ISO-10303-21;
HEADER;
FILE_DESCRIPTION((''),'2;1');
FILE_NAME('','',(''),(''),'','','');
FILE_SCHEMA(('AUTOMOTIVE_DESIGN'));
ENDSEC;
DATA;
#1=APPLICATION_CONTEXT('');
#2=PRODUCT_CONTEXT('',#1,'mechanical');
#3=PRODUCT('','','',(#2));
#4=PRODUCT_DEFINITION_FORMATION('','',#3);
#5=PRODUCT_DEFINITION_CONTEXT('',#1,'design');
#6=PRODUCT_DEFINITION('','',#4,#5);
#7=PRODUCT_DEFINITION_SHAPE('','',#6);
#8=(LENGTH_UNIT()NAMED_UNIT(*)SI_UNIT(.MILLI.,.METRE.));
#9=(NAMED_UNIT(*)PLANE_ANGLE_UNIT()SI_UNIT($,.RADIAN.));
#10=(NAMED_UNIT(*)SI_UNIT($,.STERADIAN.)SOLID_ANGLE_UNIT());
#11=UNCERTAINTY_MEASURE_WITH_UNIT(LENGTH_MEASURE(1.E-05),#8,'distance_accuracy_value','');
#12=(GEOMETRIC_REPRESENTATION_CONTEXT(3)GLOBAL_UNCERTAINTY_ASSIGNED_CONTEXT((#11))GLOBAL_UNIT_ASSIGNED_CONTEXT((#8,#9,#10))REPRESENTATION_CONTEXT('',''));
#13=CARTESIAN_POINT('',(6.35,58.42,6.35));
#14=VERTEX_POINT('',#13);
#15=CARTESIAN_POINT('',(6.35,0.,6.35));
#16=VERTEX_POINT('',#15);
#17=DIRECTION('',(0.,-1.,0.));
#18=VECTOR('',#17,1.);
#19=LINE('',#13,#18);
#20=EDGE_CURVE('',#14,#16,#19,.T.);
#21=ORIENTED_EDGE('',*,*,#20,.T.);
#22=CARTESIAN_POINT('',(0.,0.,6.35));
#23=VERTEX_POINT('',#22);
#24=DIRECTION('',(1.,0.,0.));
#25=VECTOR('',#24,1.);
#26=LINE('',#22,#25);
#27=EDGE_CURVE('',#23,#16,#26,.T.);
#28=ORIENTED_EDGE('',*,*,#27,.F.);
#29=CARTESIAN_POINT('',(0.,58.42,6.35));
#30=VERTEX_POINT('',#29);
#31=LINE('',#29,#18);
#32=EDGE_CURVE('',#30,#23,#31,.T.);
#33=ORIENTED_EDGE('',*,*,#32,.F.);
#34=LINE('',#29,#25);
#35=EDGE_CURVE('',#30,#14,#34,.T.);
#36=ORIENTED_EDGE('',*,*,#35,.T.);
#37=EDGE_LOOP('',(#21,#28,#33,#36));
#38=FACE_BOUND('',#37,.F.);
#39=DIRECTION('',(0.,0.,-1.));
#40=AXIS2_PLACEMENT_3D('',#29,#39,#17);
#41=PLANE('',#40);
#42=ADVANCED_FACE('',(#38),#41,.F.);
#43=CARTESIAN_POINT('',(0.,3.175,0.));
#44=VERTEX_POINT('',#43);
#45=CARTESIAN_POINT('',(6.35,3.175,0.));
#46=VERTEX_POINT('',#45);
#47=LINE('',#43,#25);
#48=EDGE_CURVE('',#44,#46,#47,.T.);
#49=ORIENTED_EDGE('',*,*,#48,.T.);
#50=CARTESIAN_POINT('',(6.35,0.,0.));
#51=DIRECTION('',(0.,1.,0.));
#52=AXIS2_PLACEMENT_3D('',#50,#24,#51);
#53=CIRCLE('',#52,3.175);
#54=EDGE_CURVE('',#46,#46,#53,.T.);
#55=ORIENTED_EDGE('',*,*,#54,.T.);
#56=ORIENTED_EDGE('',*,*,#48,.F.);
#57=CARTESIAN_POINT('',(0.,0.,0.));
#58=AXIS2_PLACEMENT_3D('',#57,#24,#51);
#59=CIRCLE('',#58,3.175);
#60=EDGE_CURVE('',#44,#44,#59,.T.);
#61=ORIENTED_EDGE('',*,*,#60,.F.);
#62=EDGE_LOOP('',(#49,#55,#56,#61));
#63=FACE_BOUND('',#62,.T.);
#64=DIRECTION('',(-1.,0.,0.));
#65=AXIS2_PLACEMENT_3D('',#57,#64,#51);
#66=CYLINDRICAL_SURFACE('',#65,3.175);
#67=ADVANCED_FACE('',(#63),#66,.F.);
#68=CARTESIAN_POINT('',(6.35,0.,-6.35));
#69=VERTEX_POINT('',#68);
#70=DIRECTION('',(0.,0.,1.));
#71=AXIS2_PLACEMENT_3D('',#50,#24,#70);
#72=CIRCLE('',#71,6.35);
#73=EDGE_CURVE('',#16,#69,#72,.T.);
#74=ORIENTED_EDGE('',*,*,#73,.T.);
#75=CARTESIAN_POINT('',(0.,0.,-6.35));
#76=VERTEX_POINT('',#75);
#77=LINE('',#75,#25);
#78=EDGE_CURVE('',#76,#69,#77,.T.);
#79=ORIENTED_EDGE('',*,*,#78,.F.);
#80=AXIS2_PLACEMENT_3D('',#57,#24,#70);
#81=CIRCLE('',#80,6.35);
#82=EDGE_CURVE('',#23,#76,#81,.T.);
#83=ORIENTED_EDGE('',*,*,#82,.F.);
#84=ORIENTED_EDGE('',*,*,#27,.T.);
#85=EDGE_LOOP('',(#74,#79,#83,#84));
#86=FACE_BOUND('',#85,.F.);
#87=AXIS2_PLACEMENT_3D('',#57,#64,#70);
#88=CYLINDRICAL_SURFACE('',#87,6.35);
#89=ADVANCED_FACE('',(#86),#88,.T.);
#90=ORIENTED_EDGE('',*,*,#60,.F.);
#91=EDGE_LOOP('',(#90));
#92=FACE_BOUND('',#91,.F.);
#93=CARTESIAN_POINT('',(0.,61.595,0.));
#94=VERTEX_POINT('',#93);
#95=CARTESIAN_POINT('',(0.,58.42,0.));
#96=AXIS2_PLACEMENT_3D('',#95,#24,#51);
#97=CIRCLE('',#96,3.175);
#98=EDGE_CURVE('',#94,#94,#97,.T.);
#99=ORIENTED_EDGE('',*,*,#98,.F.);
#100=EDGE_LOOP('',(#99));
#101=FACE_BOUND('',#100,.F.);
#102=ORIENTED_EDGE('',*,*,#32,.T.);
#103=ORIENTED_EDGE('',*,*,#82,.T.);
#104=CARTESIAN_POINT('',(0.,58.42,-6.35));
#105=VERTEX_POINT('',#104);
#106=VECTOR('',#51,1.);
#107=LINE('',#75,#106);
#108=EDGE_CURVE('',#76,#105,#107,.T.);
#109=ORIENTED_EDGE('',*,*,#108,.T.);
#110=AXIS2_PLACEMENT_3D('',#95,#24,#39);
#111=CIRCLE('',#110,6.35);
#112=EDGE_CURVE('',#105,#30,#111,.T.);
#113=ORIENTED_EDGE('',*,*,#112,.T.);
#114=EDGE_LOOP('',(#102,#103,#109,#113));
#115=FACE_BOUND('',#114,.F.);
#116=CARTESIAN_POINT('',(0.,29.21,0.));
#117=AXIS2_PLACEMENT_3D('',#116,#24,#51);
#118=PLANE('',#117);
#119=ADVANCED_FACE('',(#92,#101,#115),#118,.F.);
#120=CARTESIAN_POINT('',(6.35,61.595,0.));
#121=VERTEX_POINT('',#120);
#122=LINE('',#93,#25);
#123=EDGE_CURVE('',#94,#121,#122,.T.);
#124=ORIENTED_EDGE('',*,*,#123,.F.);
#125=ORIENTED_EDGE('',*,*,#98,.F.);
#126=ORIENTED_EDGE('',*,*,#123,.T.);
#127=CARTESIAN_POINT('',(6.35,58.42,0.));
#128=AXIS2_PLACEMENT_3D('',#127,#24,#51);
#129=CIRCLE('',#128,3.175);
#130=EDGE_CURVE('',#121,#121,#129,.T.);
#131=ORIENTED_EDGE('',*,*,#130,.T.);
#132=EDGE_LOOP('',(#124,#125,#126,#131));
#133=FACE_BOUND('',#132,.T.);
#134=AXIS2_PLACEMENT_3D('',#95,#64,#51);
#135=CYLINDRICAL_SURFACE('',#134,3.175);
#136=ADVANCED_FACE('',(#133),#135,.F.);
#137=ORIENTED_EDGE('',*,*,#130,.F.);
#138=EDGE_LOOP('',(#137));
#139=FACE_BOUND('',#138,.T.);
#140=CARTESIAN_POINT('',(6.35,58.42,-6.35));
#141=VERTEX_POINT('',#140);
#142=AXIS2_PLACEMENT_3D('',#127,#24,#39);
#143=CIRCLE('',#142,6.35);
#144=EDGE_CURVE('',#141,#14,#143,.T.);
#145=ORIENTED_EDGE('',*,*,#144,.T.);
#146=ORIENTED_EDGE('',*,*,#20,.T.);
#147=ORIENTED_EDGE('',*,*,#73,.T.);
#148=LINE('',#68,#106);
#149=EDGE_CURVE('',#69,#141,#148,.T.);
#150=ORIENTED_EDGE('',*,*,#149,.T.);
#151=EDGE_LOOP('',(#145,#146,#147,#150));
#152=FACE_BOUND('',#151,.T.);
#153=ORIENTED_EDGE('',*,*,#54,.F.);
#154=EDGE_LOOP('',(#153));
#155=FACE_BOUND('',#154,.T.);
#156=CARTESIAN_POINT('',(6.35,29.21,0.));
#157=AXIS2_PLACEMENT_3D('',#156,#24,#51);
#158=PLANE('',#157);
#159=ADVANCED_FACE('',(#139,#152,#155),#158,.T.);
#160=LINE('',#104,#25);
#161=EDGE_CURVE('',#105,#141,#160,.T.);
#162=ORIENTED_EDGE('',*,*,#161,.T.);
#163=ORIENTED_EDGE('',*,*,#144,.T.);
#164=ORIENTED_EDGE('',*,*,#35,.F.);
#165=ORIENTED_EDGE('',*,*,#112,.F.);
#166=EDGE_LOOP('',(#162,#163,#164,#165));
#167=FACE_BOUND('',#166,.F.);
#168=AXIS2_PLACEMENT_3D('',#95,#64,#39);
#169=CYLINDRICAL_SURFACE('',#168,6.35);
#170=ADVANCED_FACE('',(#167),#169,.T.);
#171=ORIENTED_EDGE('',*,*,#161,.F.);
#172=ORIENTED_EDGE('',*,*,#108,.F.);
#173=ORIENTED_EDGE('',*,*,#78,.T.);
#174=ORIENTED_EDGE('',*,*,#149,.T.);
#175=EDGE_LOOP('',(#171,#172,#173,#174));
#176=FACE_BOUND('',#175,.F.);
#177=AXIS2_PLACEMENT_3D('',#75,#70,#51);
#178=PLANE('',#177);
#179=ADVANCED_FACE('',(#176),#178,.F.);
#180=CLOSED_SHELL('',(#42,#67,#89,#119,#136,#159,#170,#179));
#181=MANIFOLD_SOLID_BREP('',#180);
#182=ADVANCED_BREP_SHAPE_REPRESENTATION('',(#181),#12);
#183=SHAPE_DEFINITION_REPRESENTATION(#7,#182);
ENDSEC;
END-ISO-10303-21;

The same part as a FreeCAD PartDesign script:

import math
import FreeCAD as App
import Part
import Sketcher

V = App.Vector
Q = App.Units.Quantity

doc = App.newDocument("Part")
params = doc.addObject("Spreadsheet::Sheet", "Params")
for row, (alias, value) in enumerate([
    ("sketch1_diameter", "0.25 in"),
    ("sketch1_radius", "0.25 in"),
    ("sketch1_width", "2.3 in"),
    ("pad1_length", "0.25 in"),
], start=1):
    params.set(f"A{row}", alias)
    params.set(f"B{row}", "=" + value)
    params.setAlias(f"B{row}", alias)

body = doc.addObject("PartDesign::Body", "Body")

# Sketch on YZ plane
sketch1 = body.newObject("Sketcher::SketchObject", "Sketch")
sketch1.AttachmentSupport = (doc.getObject("YZ_Plane"), [""])
sketch1.MapMode = "FlatFace"
sketch1.addGeometry(Part.LineSegment(V(58.4, 6.3, 0), V(0, 6.3, 0)), False)
sketch1.addGeometry(Part.ArcOfCircle(Part.Circle(V(0, 0, 0), V(0, 0, 1), 6.3), math.radians(90), math.radians(270)), False)
sketch1.addGeometry(Part.LineSegment(V(0, -6.3, 0), V(58.4, -6.3, 0)), False)
sketch1.addGeometry(Part.ArcOfCircle(Part.Circle(V(58.4, 0, 0), V(0, 0, 1), 6.3), math.radians(-90), math.radians(90)), False)
sketch1.addGeometry(Part.Circle(V(0, 0, 0), V(0, 0, 1), 3.2), False)
sketch1.addGeometry(Part.Circle(V(58.4, 0, 0), V(0, 0, 1), 3.2), False)
sketch1.addConstraint(Sketcher.Constraint("Tangent", 0, 2, 1, 1))
sketch1.addConstraint(Sketcher.Constraint("Tangent", 1, 2, 2, 1))
sketch1.addConstraint(Sketcher.Constraint("Tangent", 2, 2, 3, 1))
sketch1.addConstraint(Sketcher.Constraint("Tangent", 3, 2, 0, 1))
sketch1.addConstraint(Sketcher.Constraint("Horizontal", 0))
sketch1.addConstraint(Sketcher.Constraint("Horizontal", 2))
sketch1.addConstraint(Sketcher.Constraint("Coincident", 1, 3, -1, 1))
sketch1.addConstraint(Sketcher.Constraint("Coincident", 4, 3, -1, 1))
sketch1.addConstraint(Sketcher.Constraint("Coincident", 5, 3, 3, 3))
sketch1.addConstraint(Sketcher.Constraint("Equal", 4, 5))
sketch1.addConstraint(Sketcher.Constraint("Diameter", 4, Q("0.25 in")))
sketch1.addConstraint(Sketcher.Constraint("Radius", 1, Q("0.25 in")))
sketch1.addConstraint(Sketcher.Constraint("DistanceX", 0, 2, 0, 1, Q("2.3 in")))
sketch1.setExpression("Constraints[10]", "Params.sketch1_diameter")
sketch1.setExpression("Constraints[11]", "Params.sketch1_radius")
sketch1.setExpression("Constraints[12]", "Params.sketch1_width")
pad1 = body.newObject("PartDesign::Pad", "Pad")
pad1.Profile = sketch1
pad1.setExpression("Length", "Params.pad1_length")

doc.recompute()
